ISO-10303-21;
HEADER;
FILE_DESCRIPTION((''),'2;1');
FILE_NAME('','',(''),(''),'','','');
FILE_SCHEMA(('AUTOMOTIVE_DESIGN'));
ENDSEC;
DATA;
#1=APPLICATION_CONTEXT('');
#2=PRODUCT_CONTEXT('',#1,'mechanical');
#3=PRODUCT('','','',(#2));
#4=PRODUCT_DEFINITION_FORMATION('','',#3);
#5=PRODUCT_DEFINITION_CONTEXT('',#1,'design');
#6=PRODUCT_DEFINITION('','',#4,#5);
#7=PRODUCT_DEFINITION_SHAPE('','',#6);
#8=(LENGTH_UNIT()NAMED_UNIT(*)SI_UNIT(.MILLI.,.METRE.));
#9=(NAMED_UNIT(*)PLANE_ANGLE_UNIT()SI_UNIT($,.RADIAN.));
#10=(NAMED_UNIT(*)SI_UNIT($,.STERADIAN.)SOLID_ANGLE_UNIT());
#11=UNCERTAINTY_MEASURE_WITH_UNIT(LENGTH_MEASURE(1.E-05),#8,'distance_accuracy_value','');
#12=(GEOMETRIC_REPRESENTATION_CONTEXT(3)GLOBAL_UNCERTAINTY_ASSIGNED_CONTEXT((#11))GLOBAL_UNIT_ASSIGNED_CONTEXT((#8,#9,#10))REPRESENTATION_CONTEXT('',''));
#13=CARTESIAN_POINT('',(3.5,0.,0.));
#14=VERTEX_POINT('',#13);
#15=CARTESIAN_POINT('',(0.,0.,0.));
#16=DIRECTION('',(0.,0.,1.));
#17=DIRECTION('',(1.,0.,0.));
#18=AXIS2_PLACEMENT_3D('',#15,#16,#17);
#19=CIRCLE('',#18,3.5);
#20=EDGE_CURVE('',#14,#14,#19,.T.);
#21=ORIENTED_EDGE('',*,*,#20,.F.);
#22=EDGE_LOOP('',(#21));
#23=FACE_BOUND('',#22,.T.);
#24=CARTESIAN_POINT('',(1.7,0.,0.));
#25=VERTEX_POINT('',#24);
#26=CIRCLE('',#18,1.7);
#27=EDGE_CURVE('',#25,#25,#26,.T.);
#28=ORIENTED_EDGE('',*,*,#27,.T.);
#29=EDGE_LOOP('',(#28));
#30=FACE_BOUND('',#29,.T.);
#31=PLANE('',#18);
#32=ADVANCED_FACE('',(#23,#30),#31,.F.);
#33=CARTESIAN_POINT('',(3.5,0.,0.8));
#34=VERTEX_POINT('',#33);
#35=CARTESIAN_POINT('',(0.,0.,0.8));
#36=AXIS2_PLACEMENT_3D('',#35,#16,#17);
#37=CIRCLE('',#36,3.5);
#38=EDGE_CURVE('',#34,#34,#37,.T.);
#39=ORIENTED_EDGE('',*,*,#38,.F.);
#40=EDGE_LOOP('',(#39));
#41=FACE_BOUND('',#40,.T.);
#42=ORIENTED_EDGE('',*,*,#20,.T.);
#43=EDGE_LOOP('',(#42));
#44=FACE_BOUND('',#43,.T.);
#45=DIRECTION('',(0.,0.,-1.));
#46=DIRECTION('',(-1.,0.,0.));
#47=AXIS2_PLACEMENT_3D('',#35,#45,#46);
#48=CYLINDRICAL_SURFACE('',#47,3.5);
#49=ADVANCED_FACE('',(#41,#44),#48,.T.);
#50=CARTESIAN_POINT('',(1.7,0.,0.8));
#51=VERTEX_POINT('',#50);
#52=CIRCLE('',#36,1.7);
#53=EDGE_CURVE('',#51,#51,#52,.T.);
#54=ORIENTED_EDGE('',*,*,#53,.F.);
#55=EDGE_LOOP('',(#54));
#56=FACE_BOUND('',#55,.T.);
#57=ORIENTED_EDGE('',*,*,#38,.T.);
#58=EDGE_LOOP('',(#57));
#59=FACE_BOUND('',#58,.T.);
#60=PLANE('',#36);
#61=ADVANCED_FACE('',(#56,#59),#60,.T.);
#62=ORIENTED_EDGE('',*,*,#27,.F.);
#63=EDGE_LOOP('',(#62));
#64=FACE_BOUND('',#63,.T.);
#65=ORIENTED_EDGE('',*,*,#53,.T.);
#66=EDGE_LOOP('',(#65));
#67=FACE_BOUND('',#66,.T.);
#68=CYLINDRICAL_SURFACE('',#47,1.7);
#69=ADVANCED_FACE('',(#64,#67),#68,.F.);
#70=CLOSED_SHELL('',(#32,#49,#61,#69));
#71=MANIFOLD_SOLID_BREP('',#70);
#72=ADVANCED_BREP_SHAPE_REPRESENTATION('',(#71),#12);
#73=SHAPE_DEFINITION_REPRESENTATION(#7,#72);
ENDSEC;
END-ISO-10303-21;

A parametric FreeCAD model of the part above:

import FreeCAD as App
import Part
import Sketcher

doc = App.newDocument("Part")
params = doc.addObject("Spreadsheet::Sheet", "Params")
for row, (alias, value) in enumerate([
    ("sketch1_diameter", "7 mm"),
    ("sketch1_diameter2", "3.4 mm"),
    ("pad1_length", "0.8 mm"),
], start=1):
    params.set(f"A{row}", alias)
    params.set(f"B{row}", "=" + value)
    params.setAlias(f"B{row}", alias)

body = doc.addObject("PartDesign::Body", "Body")

sketch1 = body.newObject("Sketcher::SketchObject", "Sketch")
sketch1.AttachmentSupport = (doc.getObject("XY_Plane"), [""])
sketch1.MapMode = "FlatFace"
sketch1.addGeometry([
    Part.Circle(App.Vector(0, 0, 0), App.Vector(0, 0, 1), 3.5),
    Part.Circle(App.Vector(0, 0, 0), App.Vector(0, 0, 1), 1.7),
], False)
sketch1.addConstraint([
    Sketcher.Constraint("Coincident", 0, 3, -1, 1),
    Sketcher.Constraint("Coincident", 1, 3, -1, 1),
    Sketcher.Constraint("Diameter", 0, 7.0),
    Sketcher.Constraint("Diameter", 1, 3.4),
])
sketch1.setExpression("Constraints[2]", "Params.sketch1_diameter")
sketch1.setExpression("Constraints[3]", "Params.sketch1_diameter2")
pad1 = body.newObject("PartDesign::Pad", "Pad")
pad1.Profile = sketch1
pad1.setExpression("Length", "Params.pad1_length")

doc.recompute()
